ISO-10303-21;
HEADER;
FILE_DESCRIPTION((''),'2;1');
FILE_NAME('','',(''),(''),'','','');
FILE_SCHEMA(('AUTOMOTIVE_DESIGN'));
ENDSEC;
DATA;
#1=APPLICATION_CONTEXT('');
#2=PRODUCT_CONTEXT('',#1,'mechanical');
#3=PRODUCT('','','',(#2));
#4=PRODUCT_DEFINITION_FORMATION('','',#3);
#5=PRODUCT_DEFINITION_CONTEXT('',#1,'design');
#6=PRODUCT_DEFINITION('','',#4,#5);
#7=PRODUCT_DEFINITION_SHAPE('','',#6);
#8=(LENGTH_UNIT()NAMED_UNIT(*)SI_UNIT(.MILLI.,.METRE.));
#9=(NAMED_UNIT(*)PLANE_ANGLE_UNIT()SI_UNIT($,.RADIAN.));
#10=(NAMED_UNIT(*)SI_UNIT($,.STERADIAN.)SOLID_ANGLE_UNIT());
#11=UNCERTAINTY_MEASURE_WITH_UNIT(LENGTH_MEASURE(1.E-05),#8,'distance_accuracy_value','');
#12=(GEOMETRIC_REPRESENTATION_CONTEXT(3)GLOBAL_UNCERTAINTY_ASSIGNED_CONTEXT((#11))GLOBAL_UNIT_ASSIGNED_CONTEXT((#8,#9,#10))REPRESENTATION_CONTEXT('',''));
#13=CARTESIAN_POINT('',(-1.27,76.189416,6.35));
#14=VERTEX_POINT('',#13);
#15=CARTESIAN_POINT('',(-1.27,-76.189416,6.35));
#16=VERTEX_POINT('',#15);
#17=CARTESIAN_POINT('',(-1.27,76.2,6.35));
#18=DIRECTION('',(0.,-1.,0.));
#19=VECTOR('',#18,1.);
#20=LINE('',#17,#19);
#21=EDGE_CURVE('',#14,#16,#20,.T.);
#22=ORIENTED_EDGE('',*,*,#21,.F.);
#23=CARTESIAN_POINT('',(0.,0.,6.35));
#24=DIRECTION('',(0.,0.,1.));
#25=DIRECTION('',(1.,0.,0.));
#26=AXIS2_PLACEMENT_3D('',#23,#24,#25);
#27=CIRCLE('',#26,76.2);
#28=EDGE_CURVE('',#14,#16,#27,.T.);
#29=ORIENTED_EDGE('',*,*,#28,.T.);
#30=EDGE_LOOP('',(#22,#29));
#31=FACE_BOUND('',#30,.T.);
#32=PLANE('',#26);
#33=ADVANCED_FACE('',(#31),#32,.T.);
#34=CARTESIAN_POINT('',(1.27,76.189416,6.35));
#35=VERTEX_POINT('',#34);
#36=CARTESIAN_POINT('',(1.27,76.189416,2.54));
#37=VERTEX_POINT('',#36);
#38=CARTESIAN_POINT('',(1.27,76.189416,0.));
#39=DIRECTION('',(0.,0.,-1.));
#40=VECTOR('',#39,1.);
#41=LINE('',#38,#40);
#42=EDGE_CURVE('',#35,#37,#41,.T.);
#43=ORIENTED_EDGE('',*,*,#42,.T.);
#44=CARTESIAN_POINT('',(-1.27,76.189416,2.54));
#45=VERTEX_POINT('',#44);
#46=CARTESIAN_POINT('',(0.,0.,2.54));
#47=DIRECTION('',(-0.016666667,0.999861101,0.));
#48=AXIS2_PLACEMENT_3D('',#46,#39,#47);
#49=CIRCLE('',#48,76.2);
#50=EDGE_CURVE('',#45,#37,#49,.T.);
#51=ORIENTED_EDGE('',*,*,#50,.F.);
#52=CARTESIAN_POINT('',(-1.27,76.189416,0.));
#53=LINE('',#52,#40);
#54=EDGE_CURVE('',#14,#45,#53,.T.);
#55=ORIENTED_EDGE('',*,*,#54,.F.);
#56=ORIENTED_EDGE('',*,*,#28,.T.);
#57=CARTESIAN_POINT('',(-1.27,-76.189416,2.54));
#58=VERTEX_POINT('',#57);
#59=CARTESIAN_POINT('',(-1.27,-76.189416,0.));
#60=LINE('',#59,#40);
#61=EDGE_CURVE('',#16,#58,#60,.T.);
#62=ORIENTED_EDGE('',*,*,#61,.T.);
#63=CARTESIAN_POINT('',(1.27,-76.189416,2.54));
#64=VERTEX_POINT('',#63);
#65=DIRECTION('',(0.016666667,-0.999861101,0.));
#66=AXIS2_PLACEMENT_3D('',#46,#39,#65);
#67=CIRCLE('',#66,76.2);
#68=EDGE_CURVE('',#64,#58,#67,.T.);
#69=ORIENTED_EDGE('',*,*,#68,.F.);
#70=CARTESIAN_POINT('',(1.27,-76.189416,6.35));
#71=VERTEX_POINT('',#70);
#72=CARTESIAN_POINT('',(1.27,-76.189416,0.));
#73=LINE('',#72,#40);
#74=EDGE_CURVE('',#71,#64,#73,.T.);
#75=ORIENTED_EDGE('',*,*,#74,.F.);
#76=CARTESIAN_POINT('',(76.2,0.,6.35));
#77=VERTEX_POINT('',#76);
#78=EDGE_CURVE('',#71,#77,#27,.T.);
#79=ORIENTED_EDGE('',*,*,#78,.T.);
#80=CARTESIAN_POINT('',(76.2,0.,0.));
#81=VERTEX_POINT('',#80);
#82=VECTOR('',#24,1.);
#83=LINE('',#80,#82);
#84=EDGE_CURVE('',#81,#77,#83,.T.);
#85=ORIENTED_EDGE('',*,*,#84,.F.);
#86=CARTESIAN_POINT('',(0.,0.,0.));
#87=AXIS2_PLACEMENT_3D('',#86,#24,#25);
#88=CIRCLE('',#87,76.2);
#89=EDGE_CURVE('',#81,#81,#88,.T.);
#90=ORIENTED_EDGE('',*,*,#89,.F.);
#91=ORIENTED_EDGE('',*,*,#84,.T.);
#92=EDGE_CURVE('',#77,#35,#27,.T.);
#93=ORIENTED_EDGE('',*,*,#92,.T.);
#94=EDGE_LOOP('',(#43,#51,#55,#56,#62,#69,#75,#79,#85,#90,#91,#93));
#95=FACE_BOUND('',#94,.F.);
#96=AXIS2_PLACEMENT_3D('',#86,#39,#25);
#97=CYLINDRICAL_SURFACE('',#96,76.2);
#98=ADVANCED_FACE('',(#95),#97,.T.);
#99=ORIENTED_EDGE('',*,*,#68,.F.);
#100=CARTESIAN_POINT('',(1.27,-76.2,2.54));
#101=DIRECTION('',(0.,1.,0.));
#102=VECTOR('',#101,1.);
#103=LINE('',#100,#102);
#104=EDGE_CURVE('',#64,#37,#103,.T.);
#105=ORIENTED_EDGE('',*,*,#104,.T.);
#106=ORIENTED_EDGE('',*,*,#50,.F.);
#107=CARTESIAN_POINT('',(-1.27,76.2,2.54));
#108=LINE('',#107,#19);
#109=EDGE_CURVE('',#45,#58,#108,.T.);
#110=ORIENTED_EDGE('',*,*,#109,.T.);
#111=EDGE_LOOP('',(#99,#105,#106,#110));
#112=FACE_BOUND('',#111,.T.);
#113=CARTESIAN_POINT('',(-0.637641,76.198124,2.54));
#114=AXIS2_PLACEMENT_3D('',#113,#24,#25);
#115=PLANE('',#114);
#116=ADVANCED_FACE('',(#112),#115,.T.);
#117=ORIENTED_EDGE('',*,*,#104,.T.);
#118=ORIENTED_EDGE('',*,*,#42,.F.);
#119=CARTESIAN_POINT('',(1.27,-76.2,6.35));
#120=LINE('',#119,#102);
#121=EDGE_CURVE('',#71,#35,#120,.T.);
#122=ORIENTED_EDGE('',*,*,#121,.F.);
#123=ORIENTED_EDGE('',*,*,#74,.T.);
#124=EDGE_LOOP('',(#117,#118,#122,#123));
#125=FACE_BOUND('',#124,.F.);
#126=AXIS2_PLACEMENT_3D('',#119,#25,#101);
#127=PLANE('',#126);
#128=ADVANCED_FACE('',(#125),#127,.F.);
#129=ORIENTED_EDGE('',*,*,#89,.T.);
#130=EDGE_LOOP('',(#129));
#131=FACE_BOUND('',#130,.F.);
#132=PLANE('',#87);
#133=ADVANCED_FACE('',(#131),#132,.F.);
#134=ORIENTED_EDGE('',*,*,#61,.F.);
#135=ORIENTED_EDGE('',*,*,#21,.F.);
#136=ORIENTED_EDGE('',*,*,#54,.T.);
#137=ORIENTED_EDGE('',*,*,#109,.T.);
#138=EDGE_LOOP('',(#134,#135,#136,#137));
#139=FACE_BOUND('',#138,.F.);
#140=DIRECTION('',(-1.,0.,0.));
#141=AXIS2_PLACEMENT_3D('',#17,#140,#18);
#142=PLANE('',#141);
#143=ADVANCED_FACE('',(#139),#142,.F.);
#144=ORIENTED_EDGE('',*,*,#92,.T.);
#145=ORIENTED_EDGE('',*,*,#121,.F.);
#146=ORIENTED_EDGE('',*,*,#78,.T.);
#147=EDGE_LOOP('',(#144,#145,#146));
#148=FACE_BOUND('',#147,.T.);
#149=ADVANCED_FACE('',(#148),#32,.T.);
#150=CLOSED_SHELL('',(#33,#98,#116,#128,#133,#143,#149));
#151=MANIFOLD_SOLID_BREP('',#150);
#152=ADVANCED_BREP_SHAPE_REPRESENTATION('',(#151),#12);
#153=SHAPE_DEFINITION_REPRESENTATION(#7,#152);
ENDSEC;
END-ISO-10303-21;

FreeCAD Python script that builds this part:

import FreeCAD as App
import Part
import Sketcher

V = App.Vector
Q = App.Units.Quantity

doc = App.newDocument("Part")
body = doc.addObject("PartDesign::Body", "Body")

# Sketch on XY plane
sketch1 = body.newObject("Sketcher::SketchObject", "Sketch")
sketch1.AttachmentSupport = (doc.getObject("XY_Plane"), [""])
sketch1.MapMode = "FlatFace"
sketch1.addGeometry(Part.Circle(V(0, 0, 0), V(0, 0, 1), 76), False)
sketch1.addConstraint(Sketcher.Constraint("Coincident", 0, 3, -1, 1))
sketch1.addConstraint(Sketcher.Constraint("Diameter", 0, Q("6 in")))
pad1 = body.newObject("PartDesign::Pad", "Pad")
pad1.Profile = sketch1
pad1.Length = Q("0.25 in")

# Sketch on XY plane
sketch2 = body.newObject("Sketcher::SketchObject", "Sketch001")
sketch2.AttachmentSupport = (doc.getObject("XY_Plane"), [""])
sketch2.MapMode = "FlatFace"
sketch2.AttachmentOffset = App.Placement(V(0, 0, 0.25 * 25.4), App.Rotation())
sketch2.addGeometry(Part.LineSegment(V(-1.3, 76.2, 0), V(-1.3, -76.2, 0)), False)
sketch2.addGeometry(Part.LineSegment(V(-1.3, -76.2, 0), V(1.3, -76.2, 0)), False)
sketch2.addGeometry(Part.LineSegment(V(1.3, -76.2, 0), V(1.3, 76.2, 0)), False)
sketch2.addGeometry(Part.LineSegment(V(1.3, 76.2, 0), V(-1.3, 76.2, 0)), False)
sketch2.addConstraint(Sketcher.Constraint("Coincident", 0, 2, 1, 1))
sketch2.addConstraint(Sketcher.Constraint("Coincident", 1, 2, 2, 1))
sketch2.addConstraint(Sketcher.Constraint("Coincident", 2, 2, 3, 1))
sketch2.addConstraint(Sketcher.Constraint("Coincident", 3, 2, 0, 1))
sketch2.addConstraint(Sketcher.Constraint("Vertical", 0))
sketch2.addConstraint(Sketcher.Constraint("Horizontal", 1))
sketch2.addConstraint(Sketcher.Constraint("Vertical", 2))
sketch2.addConstraint(Sketcher.Constraint("Horizontal", 3))
sketch2.addConstraint(Sketcher.Constraint("Symmetric", 0, 2, 2, 2, -1, 1))
sketch2.addConstraint(Sketcher.Constraint("DistanceY", 0, 2, 0, 1, Q("6 in")))
sketch2.addConstraint(Sketcher.Constraint("DistanceX", 1, 1, 1, 2, Q("0.1 in")))
pocket1 = body.newObject("PartDesign::Pocket", "Pocket")
pocket1.Profile = sketch2
pocket1.Length = Q("0.15 in")

doc.recompute()
